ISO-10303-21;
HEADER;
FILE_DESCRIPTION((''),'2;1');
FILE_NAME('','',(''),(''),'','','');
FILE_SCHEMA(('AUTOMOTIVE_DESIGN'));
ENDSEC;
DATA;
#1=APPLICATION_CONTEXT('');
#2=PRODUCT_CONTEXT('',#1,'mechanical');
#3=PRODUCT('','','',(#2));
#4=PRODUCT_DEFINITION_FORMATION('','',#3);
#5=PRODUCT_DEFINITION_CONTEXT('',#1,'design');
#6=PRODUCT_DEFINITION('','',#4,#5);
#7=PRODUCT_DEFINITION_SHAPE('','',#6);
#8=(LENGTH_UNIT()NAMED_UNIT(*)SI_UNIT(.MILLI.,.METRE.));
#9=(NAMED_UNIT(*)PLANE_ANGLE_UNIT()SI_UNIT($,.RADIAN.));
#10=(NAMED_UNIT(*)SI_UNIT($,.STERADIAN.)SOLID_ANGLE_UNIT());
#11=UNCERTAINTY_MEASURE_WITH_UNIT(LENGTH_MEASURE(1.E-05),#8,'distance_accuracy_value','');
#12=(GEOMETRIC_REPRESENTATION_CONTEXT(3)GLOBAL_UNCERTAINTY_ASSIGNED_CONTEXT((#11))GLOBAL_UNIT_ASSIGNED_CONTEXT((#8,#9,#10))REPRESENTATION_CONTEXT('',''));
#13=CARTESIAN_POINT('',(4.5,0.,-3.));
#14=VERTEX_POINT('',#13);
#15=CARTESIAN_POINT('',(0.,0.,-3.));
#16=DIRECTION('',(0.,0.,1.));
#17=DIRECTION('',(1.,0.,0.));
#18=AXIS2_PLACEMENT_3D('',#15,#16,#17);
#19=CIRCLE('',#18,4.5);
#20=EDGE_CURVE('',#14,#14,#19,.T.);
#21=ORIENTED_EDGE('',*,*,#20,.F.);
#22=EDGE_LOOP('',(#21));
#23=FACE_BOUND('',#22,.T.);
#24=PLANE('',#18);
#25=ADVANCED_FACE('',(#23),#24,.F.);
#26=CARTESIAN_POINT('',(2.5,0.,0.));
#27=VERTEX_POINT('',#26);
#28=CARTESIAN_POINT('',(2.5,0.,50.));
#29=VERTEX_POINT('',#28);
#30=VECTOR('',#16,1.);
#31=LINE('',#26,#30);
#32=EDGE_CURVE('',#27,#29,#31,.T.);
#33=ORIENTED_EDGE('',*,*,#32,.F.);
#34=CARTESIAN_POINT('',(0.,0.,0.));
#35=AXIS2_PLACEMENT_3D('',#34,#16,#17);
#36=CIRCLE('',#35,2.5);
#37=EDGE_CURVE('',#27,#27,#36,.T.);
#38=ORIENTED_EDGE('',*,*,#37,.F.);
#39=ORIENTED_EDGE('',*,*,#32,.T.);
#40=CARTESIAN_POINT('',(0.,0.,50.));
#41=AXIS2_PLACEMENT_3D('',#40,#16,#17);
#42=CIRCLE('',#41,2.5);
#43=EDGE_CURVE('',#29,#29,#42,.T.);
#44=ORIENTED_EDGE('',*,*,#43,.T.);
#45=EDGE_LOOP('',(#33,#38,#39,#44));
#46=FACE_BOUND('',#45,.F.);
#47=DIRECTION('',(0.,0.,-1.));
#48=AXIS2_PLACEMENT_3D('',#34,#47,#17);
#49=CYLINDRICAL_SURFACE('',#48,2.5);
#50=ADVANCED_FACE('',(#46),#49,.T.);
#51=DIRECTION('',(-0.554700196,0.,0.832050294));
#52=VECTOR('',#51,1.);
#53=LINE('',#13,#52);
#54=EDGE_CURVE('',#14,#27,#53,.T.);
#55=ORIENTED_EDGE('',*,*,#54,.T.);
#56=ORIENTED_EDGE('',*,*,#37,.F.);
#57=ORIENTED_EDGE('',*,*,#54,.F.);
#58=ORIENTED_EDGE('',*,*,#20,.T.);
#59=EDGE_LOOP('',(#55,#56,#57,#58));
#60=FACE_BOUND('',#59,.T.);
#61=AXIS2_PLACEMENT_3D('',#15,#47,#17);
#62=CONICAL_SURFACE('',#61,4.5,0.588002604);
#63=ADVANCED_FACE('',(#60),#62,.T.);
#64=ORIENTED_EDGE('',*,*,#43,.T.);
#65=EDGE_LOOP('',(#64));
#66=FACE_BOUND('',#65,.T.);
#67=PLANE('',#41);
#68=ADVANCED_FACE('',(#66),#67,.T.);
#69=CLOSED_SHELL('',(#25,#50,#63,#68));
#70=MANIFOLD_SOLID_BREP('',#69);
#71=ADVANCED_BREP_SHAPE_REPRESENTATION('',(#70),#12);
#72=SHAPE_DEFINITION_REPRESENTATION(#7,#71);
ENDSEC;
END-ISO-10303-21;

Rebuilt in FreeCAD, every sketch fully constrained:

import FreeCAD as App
import Part
import Sketcher


def add_polygon(sketch, points):
    """Adds a closed chain of lines whose ends are joined by coincident constraints."""
    first, n = sketch.GeometryCount, len(points)
    for a, b in zip(points, points[1:] + points[:1]):
        sketch.addGeometry(Part.LineSegment(App.Vector(*a, 0), App.Vector(*b, 0)), False)
    for i in range(n):
        sketch.addConstraint(Sketcher.Constraint("Coincident", first + i, 2, first + (i + 1) % n, 1))

doc = App.newDocument("Part")
body = doc.addObject("PartDesign::Body", "Body")

# Sketch on XZ plane
sketch1 = doc.addObject("Sketcher::SketchObject", "Sketch")
body.addObject(sketch1)
sketch1.AttachmentSupport = (doc.XZ_Plane, [""])
sketch1.MapMode = "FlatFace"
add_polygon(sketch1, [(0, -3), (4.5, -3), (2.5, 0), (0, 0)])  # lines 0-3
sketch1.addConstraint(Sketcher.Constraint("Horizontal", 0))
sketch1.addConstraint(Sketcher.Constraint("Horizontal", 2))
sketch1.addConstraint(Sketcher.Constraint("Vertical", 3))
sketch1.addConstraint(Sketcher.Constraint("Coincident", 2, 2, -1, 1))
sketch1.addConstraint(Sketcher.Constraint("DistanceY", 3, 2, 3, 1, 3.0))
sketch1.addConstraint(Sketcher.Constraint("DistanceX", 0, 1, 0, 2, 4.5))
sketch1.addConstraint(Sketcher.Constraint("DistanceX", 2, 2, 2, 1, 2.5))
revolution = doc.addObject("PartDesign::Revolution", "Revolution")
body.addObject(revolution)
revolution.Profile = sketch1
revolution.ReferenceAxis = (sketch1, ["V_Axis"])
revolution.Angle = 360
body2 = doc.addObject("PartDesign::Body", "Body001")

# Sketch on XY plane
sketch2 = doc.addObject("Sketcher::SketchObject", "Sketch001")
body2.addObject(sketch2)
sketch2.AttachmentSupport = (doc.getObject("XY_Plane001"), [""])
sketch2.MapMode = "FlatFace"
sketch2.addGeometry(Part.Circle(App.Vector(0, 0, 0), App.Vector(0, 0, 1), 2.5), False)
sketch2.addConstraint(Sketcher.Constraint("Coincident", 0, 3, -1, 1))
sketch2.addConstraint(Sketcher.Constraint("Diameter", 0, 5.0))
pad1 = doc.addObject("PartDesign::Pad", "Pad")
body2.addObject(pad1)
pad1.Profile = sketch2
pad1.Length = 50
doc.recompute()

boolean = doc.addObject("PartDesign::Boolean", "Boolean")
body2.addObject(boolean)
boolean.Type = "Fuse"
boolean.addObjects([body])

doc.recompute()
